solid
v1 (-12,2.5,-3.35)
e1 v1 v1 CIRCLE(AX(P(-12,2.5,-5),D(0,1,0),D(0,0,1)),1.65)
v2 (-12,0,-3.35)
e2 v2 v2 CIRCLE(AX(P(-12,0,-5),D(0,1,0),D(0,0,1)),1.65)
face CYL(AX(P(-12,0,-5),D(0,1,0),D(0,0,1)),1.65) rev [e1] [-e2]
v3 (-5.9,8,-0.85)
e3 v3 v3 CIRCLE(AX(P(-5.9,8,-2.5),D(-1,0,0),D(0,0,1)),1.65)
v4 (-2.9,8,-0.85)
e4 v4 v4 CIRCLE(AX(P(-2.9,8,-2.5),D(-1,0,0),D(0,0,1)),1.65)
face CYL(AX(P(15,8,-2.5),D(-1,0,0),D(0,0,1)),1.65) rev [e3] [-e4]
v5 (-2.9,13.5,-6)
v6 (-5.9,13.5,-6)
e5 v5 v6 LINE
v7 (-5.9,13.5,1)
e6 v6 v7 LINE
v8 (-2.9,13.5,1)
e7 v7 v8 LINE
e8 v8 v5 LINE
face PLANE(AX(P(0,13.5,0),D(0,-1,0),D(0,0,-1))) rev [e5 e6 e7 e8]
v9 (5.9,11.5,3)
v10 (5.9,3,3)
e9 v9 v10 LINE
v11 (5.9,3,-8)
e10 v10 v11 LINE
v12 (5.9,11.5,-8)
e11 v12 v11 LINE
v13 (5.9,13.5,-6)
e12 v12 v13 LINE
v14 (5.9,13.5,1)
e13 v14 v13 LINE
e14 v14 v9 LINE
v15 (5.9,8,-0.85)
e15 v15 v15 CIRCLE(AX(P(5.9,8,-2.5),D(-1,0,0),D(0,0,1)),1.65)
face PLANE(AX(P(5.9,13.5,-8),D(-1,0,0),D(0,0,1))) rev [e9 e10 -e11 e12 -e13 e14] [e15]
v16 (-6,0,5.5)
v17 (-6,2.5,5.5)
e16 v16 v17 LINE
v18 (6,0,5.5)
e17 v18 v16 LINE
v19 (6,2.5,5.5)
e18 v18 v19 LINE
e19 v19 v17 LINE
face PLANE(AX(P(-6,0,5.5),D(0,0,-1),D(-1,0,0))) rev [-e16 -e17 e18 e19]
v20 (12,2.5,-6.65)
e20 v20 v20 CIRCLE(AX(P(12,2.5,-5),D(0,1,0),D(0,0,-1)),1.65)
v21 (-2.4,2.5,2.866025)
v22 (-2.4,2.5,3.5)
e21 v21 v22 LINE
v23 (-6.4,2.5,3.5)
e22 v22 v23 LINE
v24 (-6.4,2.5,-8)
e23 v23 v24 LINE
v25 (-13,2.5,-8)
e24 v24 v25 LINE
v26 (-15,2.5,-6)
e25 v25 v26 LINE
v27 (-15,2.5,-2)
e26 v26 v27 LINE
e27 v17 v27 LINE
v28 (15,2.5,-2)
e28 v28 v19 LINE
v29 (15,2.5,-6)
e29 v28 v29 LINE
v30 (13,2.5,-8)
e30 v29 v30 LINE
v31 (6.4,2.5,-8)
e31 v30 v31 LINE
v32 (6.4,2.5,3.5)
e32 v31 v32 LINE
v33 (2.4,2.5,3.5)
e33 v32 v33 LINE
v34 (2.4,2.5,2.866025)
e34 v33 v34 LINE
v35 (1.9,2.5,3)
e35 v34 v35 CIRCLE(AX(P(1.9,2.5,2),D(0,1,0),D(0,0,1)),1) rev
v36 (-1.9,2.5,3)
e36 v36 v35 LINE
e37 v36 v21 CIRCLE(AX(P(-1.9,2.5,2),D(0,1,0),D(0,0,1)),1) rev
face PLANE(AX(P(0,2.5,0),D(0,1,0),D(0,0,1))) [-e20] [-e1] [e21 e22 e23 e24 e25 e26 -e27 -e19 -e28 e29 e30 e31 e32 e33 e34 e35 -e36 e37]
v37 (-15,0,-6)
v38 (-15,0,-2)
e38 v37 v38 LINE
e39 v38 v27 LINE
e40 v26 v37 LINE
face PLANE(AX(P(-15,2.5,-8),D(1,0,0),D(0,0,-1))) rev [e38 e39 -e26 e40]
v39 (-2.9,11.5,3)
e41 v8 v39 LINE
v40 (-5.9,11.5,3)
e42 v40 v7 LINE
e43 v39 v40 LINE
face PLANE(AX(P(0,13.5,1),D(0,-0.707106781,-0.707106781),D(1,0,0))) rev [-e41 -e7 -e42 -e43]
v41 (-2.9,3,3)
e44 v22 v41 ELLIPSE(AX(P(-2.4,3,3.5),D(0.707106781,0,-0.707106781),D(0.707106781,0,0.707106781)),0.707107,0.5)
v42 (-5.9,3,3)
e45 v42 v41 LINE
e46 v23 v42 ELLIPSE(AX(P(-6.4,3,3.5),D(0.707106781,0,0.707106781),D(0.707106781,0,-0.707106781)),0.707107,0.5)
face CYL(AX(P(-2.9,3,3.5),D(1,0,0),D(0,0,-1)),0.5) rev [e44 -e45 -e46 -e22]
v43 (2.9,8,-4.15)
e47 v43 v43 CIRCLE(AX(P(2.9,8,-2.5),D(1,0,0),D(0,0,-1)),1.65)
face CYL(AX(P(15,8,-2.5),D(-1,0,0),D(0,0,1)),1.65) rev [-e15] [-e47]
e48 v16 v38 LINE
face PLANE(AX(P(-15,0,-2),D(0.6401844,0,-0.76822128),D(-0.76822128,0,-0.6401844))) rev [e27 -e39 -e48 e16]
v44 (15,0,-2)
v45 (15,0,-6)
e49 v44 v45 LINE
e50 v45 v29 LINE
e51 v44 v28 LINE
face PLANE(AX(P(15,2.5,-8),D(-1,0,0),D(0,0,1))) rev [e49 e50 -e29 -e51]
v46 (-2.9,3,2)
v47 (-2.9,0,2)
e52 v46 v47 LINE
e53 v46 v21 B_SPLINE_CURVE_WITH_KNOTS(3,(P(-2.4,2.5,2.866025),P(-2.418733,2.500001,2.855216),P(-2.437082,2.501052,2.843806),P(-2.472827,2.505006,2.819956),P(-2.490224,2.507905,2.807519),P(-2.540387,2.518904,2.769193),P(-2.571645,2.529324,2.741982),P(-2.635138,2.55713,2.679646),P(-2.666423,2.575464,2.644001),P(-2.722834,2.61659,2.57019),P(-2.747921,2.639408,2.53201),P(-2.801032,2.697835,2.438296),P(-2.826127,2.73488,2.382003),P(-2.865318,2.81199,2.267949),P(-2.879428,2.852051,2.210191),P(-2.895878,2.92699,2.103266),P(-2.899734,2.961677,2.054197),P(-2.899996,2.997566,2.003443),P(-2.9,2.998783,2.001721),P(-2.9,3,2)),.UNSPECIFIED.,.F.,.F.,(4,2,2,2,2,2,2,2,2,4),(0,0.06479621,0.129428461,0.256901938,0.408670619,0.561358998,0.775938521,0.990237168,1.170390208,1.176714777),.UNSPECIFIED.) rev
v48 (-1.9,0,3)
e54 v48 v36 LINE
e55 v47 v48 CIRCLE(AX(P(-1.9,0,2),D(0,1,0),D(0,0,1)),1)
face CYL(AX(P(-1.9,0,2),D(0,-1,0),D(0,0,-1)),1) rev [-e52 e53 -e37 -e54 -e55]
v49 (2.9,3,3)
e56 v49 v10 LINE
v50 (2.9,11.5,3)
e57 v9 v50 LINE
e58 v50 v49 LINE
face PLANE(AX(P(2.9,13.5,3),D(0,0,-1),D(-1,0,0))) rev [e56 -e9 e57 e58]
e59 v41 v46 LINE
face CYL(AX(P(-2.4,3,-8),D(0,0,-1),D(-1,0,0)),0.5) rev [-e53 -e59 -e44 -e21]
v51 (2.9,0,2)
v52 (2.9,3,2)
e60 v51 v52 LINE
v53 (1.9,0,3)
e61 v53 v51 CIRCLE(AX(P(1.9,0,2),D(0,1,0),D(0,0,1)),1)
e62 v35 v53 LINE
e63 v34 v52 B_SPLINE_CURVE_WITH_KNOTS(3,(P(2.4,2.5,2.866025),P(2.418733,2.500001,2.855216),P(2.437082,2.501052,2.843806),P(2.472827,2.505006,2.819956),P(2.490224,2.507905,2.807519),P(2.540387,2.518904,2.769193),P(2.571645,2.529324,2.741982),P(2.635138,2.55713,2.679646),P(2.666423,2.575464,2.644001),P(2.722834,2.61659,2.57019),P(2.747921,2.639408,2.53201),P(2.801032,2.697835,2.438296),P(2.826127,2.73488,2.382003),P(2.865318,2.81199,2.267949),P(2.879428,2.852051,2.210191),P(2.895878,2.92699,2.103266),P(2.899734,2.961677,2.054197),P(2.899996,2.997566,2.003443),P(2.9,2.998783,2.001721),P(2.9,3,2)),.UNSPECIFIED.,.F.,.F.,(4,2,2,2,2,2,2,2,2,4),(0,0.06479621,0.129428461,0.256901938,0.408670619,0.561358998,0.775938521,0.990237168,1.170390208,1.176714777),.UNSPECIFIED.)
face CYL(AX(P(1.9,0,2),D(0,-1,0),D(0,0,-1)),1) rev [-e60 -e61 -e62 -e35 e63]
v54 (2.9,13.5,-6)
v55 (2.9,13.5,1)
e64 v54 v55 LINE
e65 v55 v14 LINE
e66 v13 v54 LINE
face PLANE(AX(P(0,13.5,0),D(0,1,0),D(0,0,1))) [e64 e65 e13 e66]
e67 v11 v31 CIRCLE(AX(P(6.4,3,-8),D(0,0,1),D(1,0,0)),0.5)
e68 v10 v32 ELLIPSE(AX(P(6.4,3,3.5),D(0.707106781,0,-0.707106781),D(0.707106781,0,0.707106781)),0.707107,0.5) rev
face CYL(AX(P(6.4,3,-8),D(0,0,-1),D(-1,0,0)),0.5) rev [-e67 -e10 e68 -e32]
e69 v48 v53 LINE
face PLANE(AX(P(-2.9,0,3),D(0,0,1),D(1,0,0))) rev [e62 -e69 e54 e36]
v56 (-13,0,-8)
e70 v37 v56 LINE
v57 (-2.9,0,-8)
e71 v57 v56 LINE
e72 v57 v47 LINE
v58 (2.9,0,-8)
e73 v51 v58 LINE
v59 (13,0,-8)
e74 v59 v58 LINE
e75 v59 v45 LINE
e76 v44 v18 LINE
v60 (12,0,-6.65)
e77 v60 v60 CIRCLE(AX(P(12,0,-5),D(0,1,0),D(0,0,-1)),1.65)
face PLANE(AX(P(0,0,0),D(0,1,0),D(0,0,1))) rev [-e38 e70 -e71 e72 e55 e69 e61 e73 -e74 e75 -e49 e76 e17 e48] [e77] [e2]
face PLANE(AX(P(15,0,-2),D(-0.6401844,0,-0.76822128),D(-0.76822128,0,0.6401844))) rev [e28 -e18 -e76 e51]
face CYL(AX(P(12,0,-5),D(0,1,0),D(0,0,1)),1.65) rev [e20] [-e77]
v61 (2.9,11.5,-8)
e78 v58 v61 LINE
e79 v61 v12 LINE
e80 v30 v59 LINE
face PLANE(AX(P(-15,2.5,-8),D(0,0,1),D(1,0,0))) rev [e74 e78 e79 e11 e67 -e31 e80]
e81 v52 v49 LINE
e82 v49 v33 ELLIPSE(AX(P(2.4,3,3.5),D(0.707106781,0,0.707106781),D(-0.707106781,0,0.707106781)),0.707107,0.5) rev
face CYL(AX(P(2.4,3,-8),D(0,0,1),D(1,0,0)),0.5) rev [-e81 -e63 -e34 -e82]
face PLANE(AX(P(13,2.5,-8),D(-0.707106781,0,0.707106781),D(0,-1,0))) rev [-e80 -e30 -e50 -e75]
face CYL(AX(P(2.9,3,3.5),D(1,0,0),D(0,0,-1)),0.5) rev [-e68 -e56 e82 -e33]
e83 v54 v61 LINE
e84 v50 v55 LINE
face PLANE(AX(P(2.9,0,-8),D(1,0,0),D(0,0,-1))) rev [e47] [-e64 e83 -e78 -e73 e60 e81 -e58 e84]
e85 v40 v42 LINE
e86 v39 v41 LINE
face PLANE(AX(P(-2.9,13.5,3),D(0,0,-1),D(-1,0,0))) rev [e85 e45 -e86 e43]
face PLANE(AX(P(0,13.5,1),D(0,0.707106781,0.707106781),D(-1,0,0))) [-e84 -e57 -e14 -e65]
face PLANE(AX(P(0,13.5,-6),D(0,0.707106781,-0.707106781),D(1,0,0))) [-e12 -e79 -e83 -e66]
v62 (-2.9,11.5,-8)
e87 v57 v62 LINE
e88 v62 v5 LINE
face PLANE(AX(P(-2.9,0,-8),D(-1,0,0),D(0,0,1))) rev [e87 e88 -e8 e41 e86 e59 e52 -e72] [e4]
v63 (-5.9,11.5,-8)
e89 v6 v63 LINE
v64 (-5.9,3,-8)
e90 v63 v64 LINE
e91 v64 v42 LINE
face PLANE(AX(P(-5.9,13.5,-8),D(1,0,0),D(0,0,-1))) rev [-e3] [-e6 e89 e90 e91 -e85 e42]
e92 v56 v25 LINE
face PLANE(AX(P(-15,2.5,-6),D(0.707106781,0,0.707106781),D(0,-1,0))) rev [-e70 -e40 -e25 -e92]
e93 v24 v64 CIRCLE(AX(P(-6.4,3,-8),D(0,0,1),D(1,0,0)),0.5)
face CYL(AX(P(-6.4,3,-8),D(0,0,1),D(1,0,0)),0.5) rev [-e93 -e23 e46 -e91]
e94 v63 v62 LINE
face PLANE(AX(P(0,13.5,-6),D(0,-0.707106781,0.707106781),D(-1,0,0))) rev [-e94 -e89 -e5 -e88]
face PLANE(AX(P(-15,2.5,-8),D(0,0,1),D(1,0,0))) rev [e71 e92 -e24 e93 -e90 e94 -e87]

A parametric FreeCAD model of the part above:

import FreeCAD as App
import Part
import Sketcher
from FreeCAD import Vector
Q = App.Units.Quantity


def edges_at(feature, points):
    """Names of the edges that pass closest to the given points."""
    edges = feature.Shape.Edges
    near = lambda p: min(range(len(edges)), key=lambda i: edges[i].distToShape(Part.Vertex(*p))[0])
    return sorted({f"Edge{near(p) + 1}" for p in points})


def add_polygon(sketch, points):
    """Adds a closed chain of lines whose ends are joined by coincident constraints."""
    first, n = sketch.GeometryCount, len(points)
    for a, b in zip(points, points[1:] + points[:1]):
        sketch.addGeometry(Part.LineSegment(App.Vector(*a, 0), App.Vector(*b, 0)), False)
    for i in range(n):
        sketch.addConstraint(Sketcher.Constraint("Coincident", first + i, 2, first + (i + 1) % n, 1))

doc = App.newDocument("Part")
body = doc.addObject("PartDesign::Body", "Body")

# Sketch on XZ plane
sketch1 = body.newObject("Sketcher::SketchObject", "Sketch")
sketch1.AttachmentSupport = (doc.getObject("XZ_Plane"), [""])
sketch1.MapMode = "FlatFace"
add_polygon(sketch1, [(-15, -8), (-15, 8), (15, 8), (15, -8)])  # lines 0-3
sketch1.addConstraint(Sketcher.Constraint("Vertical", 0))
sketch1.addConstraint(Sketcher.Constraint("Horizontal", 1))
sketch1.addConstraint(Sketcher.Constraint("Vertical", 2))
sketch1.addConstraint(Sketcher.Constraint("Horizontal", 3))
sketch1.addConstraint(Sketcher.Constraint("Symmetric", 0, 2, 2, 2, -1, 1))
sketch1.addConstraint(Sketcher.Constraint("DistanceX", 1, 1, 1, 2, Q("30 mm")))
sketch1.addConstraint(Sketcher.Constraint("DistanceY", 0, 1, 0, 2, Q("16 mm")))
pad1 = body.newObject("PartDesign::Pad", "Pad")
pad1.Profile = sketch1
pad1.Length = 2.5
pad1.Reversed = True

# Sketch on XZ plane
sketch2 = body.newObject("Sketcher::SketchObject", "Sketch001")
sketch2.AttachmentSupport = (doc.getObject("XZ_Plane"), [""])
sketch2.MapMode = "FlatFace"
sketch2.AttachmentOffset = App.Placement(Vector(0, 0, -2.5), App.Rotation())
sketch2.addGeometry(Part.Circle(Vector(-12, -5, 0), Vector(0, 0, 1), 1.6), False)
sketch2.addGeometry(Part.Circle(Vector(12, -5, 0), Vector(0, 0, 1), 1.6), False)
sketch2.addGeometry(Part.Circle(Vector(12, 5, 0), Vector(0, 0, 1), 1.6), False)
sketch2.addGeometry(Part.Circle(Vector(-12, 5, 0), Vector(0, 0, 1), 1.6), False)
sketch2.addGeometry(Part.Circle(Vector(0, -5, 0), Vector(0, 0, 1), 1.6), False)
sketch2.addConstraint(Sketcher.Constraint("Equal", 0, 1))
sketch2.addConstraint(Sketcher.Constraint("Equal", 1, 2))
sketch2.addConstraint(Sketcher.Constraint("Equal", 2, 3))
sketch2.addConstraint(Sketcher.Constraint("Equal", 3, 4))
sketch2.addConstraint(Sketcher.Constraint("Symmetric", 0, 3, 2, 3, -1, 1))
sketch2.addConstraint(Sketcher.Constraint("Symmetric", 1, 3, 3, 3, -1, 1))
sketch2.addConstraint(Sketcher.Constraint("Symmetric", 0, 3, 1, 3, -2))
sketch2.addConstraint(Sketcher.Constraint("PointOnObject", 4, 3, -2))
sketch2.addConstraint(Sketcher.Constraint("Horizontal", 1, 3, 4, 3))
sketch2.addConstraint(Sketcher.Constraint("Diameter", 0, Q("3.3 mm")))
sketch2.addConstraint(Sketcher.Constraint("DistanceX", 0, 3, -1, 1, Q("12 mm")))
sketch2.addConstraint(Sketcher.Constraint("DistanceY", 0, 3, -1, 1, Q("5 mm")))
pocket1 = body.newObject("PartDesign::Pocket", "Pocket")
pocket1.Profile = sketch2
pocket1.Length = 2.5
pocket1.Reversed = True

# Sketch on XZ plane
sketch3 = body.newObject("Sketcher::SketchObject", "Sketch002")
sketch3.AttachmentSupport = (doc.getObject("XZ_Plane"), [""])
sketch3.MapMode = "FlatFace"
sketch3.AttachmentOffset = App.Placement(Vector(0, 0, -2.5), App.Rotation())
add_polygon(sketch3, [(-3, -8), (-3, 3), (3, 3), (3, -8)])  # lines 0-3
sketch3.addConstraint(Sketcher.Constraint("Vertical", 0))
sketch3.addConstraint(Sketcher.Constraint("Horizontal", 1))
sketch3.addConstraint(Sketcher.Constraint("Vertical", 2))
sketch3.addConstraint(Sketcher.Constraint("Horizontal", 3))
sketch3.addConstraint(Sketcher.Constraint("DistanceY", 0, 1, 0, 2, Q("11 mm")))
sketch3.addConstraint(Sketcher.Constraint("DistanceX", 1, 1, 1, 2, Q("5.8 mm")))
sketch3.addConstraint(Sketcher.Constraint("DistanceY", -1, 1, 0, 2, Q("3 mm")))
sketch3.addConstraint(Sketcher.Constraint("DistanceX", 0, 2, -1, 1, Q("2.9 mm")))
pocket2 = body.newObject("PartDesign::Pocket", "Pocket001")
pocket2.Profile = sketch3
pocket2.Length = 2.5
pocket2.Reversed = True

# Sketch on XZ plane
sketch4 = body.newObject("Sketcher::SketchObject", "Sketch003")
sketch4.AttachmentSupport = (doc.getObject("XZ_Plane"), [""])
sketch4.MapMode = "FlatFace"
sketch4.AttachmentOffset = App.Placement(Vector(0, 0, -2.5), App.Rotation())
add_polygon(sketch4, [(-5.9, -8), (-5.9, 3), (-2.9, 3), (-2.9, -8)])  # lines 0-3
add_polygon(sketch4, [(2.9, -8), (2.9, 3), (5.9, 3), (5.9, -8)])  # lines 4-7
sketch4.addConstraint(Sketcher.Constraint("Vertical", 0))
sketch4.addConstraint(Sketcher.Constraint("Horizontal", 1))
sketch4.addConstraint(Sketcher.Constraint("Vertical", 2))
sketch4.addConstraint(Sketcher.Constraint("Horizontal", 3))
sketch4.addConstraint(Sketcher.Constraint("Vertical", 4))
sketch4.addConstraint(Sketcher.Constraint("Horizontal", 5))
sketch4.addConstraint(Sketcher.Constraint("Vertical", 6))
sketch4.addConstraint(Sketcher.Constraint("Horizontal", 7))
sketch4.addConstraint(Sketcher.Constraint("Symmetric", 1, 2, 4, 2, -2))
sketch4.addConstraint(Sketcher.Constraint("Symmetric", 3, 2, 6, 2, -2))
sketch4.addConstraint(Sketcher.Constraint("DistanceX", 1, 1, 1, 2, Q("3 mm")))
sketch4.addConstraint(Sketcher.Constraint("DistanceY", 0, 1, 0, 2, Q("11 mm")))
sketch4.addConstraint(Sketcher.Constraint("DistanceY", -1, 1, 0, 2, Q("3 mm")))
sketch4.addConstraint(Sketcher.Constraint("DistanceX", 0, 2, -1, 1, Q("5.9 mm")))
pad2 = body.newObject("PartDesign::Pad", "Pad001")
pad2.Profile = sketch4
pad2.Length = 11
pad2.Reversed = True

# Sketch on YZ plane
sketch5 = body.newObject("Sketcher::SketchObject", "Sketch004")
sketch5.AttachmentSupport = (doc.getObject("YZ_Plane"), [""])
sketch5.MapMode = "FlatFace"
sketch5.AttachmentOffset = App.Placement(Vector(0, 0, -5.9), App.Rotation())
sketch5.addGeometry(Part.Circle(Vector(8, -2.5, 0), Vector(0, 0, 1), 1.6), False)
sketch5.addConstraint(Sketcher.Constraint("Diameter", 0, Q("3.3 mm")))
sketch5.addConstraint(Sketcher.Constraint("DistanceX", -1, 1, 0, 3, Q("8 mm")))
sketch5.addConstraint(Sketcher.Constraint("DistanceY", 0, 3, -1, 1, Q("2.5 mm")))
pocket3 = body.newObject("PartDesign::Pocket", "Pocket002")
pocket3.Profile = sketch5
pocket3.Type = "ThroughAll"
pocket3.Reversed = True

# Sketch on XZ plane
sketch6 = body.newObject("Sketcher::SketchObject", "Sketch005")
sketch6.AttachmentSupport = (doc.getObject("XZ_Plane"), [""])
sketch6.MapMode = "FlatFace"
sketch6.AttachmentOffset = App.Placement(Vector(0, 0, -2.5), App.Rotation())
add_polygon(sketch6, [(-3, 8), (-15, -2), (-15, 8)])  # lines 0-2
add_polygon(sketch6, [(3, 8), (15, 8), (15, -2)])  # lines 3-5
sketch6.addConstraint(Sketcher.Constraint("Vertical", 1))
sketch6.addConstraint(Sketcher.Constraint("Horizontal", 2))
sketch6.addConstraint(Sketcher.Constraint("Horizontal", 3))
sketch6.addConstraint(Sketcher.Constraint("Vertical", 4))
sketch6.addConstraint(Sketcher.Constraint("Symmetric", 1, 2, 3, 2, -2))
sketch6.addConstraint(Sketcher.Constraint("Horizontal", 0, 2, 4, 2))
sketch6.addConstraint(Sketcher.Constraint("Equal", 2, 3))
sketch6.addConstraint(Sketcher.Constraint("DistanceX", 2, 1, 2, 2, Q("12 mm")))
sketch6.addConstraint(Sketcher.Constraint("DistanceY", 1, 1, 1, 2, Q("10 mm")))
sketch6.addConstraint(Sketcher.Constraint("DistanceX", 0, 2, -1, 1, Q("15 mm")))
sketch6.addConstraint(Sketcher.Constraint("DistanceY", 0, 2, -1, 1, Q("2 mm")))
pocket4 = body.newObject("PartDesign::Pocket", "Pocket003")
pocket4.Profile = sketch6
pocket4.Type = "ThroughAll"
pocket4.Reversed = True
doc.recompute()

chamfer = body.newObject("PartDesign::Chamfer", "Chamfer")
chamfer.Base = (pocket4, edges_at(pocket4, [
    (-4.4, 13.5, -8),
    (-4.4, 13.5, 3),
    (4.4, 13.5, 3),
    (4.4, 13.5, -8),
    (-15, 1.25, -8),
    (15, 1.25, -8),
]))
chamfer.Size = 2
doc.recompute()

fillet = body.newObject("PartDesign::Fillet", "Fillet")
fillet.Base = (chamfer, edges_at(chamfer, [(-2.9, 1.25, 3), (2.9, 1.25, 3)]))
fillet.Radius = 1
doc.recompute()

fillet2 = body.newObject("PartDesign::Fillet", "Fillet001")
fillet2.Base = (fillet, edges_at(fillet, [
    (-2.9, 2.5, 2.5),
    (2.9, 2.5, 2.5),
    (-5.9, 2.5, -2.5),
    (-4.4, 2.5, 3),
    (4.4, 2.5, 3),
    (5.9, 2.5, -2.5),
]))
fillet2.Radius = 0.5

# Sketch on XZ plane
sketch7 = body.newObject("Sketcher::SketchObject", "Sketch006")
sketch7.AttachmentSupport = (doc.getObject("XZ_Plane"), [""])
sketch7.MapMode = "FlatFace"
sketch7.AttachmentOffset = App.Placement(Vector(0, 0, -2.5), App.Rotation())
add_polygon(sketch7, [(6, 5.5), (-6, 5.5), (-3, 8), (3, 8)])  # lines 0-3
sketch7.addConstraint(Sketcher.Constraint("Horizontal", 0))
sketch7.addConstraint(Sketcher.Constraint("Horizontal", 2))
sketch7.addConstraint(Sketcher.Constraint("Equal", 1, 3))
sketch7.addConstraint(Sketcher.Constraint("DistanceX", 0, 2, 0, 1, Q("12 mm")))
sketch7.addConstraint(Sketcher.Constraint("DistanceX", 2, 1, 2, 2, Q("6 mm")))
sketch7.addConstraint(Sketcher.Constraint("DistanceX", 0, 2, -1, 1, Q("6 mm")))
sketch7.addConstraint(Sketcher.Constraint("DistanceY", -1, 1, 1, 2, Q("8 mm")))
sketch7.addConstraint(Sketcher.Constraint("DistanceY", -1, 1, 0, 2, Q("5.5 mm")))
pocket5 = body.newObject("PartDesign::Pocket", "Pocket004")
pocket5.Profile = sketch7
pocket5.Type = "ThroughAll"
pocket5.Reversed = True

doc.recompute()
